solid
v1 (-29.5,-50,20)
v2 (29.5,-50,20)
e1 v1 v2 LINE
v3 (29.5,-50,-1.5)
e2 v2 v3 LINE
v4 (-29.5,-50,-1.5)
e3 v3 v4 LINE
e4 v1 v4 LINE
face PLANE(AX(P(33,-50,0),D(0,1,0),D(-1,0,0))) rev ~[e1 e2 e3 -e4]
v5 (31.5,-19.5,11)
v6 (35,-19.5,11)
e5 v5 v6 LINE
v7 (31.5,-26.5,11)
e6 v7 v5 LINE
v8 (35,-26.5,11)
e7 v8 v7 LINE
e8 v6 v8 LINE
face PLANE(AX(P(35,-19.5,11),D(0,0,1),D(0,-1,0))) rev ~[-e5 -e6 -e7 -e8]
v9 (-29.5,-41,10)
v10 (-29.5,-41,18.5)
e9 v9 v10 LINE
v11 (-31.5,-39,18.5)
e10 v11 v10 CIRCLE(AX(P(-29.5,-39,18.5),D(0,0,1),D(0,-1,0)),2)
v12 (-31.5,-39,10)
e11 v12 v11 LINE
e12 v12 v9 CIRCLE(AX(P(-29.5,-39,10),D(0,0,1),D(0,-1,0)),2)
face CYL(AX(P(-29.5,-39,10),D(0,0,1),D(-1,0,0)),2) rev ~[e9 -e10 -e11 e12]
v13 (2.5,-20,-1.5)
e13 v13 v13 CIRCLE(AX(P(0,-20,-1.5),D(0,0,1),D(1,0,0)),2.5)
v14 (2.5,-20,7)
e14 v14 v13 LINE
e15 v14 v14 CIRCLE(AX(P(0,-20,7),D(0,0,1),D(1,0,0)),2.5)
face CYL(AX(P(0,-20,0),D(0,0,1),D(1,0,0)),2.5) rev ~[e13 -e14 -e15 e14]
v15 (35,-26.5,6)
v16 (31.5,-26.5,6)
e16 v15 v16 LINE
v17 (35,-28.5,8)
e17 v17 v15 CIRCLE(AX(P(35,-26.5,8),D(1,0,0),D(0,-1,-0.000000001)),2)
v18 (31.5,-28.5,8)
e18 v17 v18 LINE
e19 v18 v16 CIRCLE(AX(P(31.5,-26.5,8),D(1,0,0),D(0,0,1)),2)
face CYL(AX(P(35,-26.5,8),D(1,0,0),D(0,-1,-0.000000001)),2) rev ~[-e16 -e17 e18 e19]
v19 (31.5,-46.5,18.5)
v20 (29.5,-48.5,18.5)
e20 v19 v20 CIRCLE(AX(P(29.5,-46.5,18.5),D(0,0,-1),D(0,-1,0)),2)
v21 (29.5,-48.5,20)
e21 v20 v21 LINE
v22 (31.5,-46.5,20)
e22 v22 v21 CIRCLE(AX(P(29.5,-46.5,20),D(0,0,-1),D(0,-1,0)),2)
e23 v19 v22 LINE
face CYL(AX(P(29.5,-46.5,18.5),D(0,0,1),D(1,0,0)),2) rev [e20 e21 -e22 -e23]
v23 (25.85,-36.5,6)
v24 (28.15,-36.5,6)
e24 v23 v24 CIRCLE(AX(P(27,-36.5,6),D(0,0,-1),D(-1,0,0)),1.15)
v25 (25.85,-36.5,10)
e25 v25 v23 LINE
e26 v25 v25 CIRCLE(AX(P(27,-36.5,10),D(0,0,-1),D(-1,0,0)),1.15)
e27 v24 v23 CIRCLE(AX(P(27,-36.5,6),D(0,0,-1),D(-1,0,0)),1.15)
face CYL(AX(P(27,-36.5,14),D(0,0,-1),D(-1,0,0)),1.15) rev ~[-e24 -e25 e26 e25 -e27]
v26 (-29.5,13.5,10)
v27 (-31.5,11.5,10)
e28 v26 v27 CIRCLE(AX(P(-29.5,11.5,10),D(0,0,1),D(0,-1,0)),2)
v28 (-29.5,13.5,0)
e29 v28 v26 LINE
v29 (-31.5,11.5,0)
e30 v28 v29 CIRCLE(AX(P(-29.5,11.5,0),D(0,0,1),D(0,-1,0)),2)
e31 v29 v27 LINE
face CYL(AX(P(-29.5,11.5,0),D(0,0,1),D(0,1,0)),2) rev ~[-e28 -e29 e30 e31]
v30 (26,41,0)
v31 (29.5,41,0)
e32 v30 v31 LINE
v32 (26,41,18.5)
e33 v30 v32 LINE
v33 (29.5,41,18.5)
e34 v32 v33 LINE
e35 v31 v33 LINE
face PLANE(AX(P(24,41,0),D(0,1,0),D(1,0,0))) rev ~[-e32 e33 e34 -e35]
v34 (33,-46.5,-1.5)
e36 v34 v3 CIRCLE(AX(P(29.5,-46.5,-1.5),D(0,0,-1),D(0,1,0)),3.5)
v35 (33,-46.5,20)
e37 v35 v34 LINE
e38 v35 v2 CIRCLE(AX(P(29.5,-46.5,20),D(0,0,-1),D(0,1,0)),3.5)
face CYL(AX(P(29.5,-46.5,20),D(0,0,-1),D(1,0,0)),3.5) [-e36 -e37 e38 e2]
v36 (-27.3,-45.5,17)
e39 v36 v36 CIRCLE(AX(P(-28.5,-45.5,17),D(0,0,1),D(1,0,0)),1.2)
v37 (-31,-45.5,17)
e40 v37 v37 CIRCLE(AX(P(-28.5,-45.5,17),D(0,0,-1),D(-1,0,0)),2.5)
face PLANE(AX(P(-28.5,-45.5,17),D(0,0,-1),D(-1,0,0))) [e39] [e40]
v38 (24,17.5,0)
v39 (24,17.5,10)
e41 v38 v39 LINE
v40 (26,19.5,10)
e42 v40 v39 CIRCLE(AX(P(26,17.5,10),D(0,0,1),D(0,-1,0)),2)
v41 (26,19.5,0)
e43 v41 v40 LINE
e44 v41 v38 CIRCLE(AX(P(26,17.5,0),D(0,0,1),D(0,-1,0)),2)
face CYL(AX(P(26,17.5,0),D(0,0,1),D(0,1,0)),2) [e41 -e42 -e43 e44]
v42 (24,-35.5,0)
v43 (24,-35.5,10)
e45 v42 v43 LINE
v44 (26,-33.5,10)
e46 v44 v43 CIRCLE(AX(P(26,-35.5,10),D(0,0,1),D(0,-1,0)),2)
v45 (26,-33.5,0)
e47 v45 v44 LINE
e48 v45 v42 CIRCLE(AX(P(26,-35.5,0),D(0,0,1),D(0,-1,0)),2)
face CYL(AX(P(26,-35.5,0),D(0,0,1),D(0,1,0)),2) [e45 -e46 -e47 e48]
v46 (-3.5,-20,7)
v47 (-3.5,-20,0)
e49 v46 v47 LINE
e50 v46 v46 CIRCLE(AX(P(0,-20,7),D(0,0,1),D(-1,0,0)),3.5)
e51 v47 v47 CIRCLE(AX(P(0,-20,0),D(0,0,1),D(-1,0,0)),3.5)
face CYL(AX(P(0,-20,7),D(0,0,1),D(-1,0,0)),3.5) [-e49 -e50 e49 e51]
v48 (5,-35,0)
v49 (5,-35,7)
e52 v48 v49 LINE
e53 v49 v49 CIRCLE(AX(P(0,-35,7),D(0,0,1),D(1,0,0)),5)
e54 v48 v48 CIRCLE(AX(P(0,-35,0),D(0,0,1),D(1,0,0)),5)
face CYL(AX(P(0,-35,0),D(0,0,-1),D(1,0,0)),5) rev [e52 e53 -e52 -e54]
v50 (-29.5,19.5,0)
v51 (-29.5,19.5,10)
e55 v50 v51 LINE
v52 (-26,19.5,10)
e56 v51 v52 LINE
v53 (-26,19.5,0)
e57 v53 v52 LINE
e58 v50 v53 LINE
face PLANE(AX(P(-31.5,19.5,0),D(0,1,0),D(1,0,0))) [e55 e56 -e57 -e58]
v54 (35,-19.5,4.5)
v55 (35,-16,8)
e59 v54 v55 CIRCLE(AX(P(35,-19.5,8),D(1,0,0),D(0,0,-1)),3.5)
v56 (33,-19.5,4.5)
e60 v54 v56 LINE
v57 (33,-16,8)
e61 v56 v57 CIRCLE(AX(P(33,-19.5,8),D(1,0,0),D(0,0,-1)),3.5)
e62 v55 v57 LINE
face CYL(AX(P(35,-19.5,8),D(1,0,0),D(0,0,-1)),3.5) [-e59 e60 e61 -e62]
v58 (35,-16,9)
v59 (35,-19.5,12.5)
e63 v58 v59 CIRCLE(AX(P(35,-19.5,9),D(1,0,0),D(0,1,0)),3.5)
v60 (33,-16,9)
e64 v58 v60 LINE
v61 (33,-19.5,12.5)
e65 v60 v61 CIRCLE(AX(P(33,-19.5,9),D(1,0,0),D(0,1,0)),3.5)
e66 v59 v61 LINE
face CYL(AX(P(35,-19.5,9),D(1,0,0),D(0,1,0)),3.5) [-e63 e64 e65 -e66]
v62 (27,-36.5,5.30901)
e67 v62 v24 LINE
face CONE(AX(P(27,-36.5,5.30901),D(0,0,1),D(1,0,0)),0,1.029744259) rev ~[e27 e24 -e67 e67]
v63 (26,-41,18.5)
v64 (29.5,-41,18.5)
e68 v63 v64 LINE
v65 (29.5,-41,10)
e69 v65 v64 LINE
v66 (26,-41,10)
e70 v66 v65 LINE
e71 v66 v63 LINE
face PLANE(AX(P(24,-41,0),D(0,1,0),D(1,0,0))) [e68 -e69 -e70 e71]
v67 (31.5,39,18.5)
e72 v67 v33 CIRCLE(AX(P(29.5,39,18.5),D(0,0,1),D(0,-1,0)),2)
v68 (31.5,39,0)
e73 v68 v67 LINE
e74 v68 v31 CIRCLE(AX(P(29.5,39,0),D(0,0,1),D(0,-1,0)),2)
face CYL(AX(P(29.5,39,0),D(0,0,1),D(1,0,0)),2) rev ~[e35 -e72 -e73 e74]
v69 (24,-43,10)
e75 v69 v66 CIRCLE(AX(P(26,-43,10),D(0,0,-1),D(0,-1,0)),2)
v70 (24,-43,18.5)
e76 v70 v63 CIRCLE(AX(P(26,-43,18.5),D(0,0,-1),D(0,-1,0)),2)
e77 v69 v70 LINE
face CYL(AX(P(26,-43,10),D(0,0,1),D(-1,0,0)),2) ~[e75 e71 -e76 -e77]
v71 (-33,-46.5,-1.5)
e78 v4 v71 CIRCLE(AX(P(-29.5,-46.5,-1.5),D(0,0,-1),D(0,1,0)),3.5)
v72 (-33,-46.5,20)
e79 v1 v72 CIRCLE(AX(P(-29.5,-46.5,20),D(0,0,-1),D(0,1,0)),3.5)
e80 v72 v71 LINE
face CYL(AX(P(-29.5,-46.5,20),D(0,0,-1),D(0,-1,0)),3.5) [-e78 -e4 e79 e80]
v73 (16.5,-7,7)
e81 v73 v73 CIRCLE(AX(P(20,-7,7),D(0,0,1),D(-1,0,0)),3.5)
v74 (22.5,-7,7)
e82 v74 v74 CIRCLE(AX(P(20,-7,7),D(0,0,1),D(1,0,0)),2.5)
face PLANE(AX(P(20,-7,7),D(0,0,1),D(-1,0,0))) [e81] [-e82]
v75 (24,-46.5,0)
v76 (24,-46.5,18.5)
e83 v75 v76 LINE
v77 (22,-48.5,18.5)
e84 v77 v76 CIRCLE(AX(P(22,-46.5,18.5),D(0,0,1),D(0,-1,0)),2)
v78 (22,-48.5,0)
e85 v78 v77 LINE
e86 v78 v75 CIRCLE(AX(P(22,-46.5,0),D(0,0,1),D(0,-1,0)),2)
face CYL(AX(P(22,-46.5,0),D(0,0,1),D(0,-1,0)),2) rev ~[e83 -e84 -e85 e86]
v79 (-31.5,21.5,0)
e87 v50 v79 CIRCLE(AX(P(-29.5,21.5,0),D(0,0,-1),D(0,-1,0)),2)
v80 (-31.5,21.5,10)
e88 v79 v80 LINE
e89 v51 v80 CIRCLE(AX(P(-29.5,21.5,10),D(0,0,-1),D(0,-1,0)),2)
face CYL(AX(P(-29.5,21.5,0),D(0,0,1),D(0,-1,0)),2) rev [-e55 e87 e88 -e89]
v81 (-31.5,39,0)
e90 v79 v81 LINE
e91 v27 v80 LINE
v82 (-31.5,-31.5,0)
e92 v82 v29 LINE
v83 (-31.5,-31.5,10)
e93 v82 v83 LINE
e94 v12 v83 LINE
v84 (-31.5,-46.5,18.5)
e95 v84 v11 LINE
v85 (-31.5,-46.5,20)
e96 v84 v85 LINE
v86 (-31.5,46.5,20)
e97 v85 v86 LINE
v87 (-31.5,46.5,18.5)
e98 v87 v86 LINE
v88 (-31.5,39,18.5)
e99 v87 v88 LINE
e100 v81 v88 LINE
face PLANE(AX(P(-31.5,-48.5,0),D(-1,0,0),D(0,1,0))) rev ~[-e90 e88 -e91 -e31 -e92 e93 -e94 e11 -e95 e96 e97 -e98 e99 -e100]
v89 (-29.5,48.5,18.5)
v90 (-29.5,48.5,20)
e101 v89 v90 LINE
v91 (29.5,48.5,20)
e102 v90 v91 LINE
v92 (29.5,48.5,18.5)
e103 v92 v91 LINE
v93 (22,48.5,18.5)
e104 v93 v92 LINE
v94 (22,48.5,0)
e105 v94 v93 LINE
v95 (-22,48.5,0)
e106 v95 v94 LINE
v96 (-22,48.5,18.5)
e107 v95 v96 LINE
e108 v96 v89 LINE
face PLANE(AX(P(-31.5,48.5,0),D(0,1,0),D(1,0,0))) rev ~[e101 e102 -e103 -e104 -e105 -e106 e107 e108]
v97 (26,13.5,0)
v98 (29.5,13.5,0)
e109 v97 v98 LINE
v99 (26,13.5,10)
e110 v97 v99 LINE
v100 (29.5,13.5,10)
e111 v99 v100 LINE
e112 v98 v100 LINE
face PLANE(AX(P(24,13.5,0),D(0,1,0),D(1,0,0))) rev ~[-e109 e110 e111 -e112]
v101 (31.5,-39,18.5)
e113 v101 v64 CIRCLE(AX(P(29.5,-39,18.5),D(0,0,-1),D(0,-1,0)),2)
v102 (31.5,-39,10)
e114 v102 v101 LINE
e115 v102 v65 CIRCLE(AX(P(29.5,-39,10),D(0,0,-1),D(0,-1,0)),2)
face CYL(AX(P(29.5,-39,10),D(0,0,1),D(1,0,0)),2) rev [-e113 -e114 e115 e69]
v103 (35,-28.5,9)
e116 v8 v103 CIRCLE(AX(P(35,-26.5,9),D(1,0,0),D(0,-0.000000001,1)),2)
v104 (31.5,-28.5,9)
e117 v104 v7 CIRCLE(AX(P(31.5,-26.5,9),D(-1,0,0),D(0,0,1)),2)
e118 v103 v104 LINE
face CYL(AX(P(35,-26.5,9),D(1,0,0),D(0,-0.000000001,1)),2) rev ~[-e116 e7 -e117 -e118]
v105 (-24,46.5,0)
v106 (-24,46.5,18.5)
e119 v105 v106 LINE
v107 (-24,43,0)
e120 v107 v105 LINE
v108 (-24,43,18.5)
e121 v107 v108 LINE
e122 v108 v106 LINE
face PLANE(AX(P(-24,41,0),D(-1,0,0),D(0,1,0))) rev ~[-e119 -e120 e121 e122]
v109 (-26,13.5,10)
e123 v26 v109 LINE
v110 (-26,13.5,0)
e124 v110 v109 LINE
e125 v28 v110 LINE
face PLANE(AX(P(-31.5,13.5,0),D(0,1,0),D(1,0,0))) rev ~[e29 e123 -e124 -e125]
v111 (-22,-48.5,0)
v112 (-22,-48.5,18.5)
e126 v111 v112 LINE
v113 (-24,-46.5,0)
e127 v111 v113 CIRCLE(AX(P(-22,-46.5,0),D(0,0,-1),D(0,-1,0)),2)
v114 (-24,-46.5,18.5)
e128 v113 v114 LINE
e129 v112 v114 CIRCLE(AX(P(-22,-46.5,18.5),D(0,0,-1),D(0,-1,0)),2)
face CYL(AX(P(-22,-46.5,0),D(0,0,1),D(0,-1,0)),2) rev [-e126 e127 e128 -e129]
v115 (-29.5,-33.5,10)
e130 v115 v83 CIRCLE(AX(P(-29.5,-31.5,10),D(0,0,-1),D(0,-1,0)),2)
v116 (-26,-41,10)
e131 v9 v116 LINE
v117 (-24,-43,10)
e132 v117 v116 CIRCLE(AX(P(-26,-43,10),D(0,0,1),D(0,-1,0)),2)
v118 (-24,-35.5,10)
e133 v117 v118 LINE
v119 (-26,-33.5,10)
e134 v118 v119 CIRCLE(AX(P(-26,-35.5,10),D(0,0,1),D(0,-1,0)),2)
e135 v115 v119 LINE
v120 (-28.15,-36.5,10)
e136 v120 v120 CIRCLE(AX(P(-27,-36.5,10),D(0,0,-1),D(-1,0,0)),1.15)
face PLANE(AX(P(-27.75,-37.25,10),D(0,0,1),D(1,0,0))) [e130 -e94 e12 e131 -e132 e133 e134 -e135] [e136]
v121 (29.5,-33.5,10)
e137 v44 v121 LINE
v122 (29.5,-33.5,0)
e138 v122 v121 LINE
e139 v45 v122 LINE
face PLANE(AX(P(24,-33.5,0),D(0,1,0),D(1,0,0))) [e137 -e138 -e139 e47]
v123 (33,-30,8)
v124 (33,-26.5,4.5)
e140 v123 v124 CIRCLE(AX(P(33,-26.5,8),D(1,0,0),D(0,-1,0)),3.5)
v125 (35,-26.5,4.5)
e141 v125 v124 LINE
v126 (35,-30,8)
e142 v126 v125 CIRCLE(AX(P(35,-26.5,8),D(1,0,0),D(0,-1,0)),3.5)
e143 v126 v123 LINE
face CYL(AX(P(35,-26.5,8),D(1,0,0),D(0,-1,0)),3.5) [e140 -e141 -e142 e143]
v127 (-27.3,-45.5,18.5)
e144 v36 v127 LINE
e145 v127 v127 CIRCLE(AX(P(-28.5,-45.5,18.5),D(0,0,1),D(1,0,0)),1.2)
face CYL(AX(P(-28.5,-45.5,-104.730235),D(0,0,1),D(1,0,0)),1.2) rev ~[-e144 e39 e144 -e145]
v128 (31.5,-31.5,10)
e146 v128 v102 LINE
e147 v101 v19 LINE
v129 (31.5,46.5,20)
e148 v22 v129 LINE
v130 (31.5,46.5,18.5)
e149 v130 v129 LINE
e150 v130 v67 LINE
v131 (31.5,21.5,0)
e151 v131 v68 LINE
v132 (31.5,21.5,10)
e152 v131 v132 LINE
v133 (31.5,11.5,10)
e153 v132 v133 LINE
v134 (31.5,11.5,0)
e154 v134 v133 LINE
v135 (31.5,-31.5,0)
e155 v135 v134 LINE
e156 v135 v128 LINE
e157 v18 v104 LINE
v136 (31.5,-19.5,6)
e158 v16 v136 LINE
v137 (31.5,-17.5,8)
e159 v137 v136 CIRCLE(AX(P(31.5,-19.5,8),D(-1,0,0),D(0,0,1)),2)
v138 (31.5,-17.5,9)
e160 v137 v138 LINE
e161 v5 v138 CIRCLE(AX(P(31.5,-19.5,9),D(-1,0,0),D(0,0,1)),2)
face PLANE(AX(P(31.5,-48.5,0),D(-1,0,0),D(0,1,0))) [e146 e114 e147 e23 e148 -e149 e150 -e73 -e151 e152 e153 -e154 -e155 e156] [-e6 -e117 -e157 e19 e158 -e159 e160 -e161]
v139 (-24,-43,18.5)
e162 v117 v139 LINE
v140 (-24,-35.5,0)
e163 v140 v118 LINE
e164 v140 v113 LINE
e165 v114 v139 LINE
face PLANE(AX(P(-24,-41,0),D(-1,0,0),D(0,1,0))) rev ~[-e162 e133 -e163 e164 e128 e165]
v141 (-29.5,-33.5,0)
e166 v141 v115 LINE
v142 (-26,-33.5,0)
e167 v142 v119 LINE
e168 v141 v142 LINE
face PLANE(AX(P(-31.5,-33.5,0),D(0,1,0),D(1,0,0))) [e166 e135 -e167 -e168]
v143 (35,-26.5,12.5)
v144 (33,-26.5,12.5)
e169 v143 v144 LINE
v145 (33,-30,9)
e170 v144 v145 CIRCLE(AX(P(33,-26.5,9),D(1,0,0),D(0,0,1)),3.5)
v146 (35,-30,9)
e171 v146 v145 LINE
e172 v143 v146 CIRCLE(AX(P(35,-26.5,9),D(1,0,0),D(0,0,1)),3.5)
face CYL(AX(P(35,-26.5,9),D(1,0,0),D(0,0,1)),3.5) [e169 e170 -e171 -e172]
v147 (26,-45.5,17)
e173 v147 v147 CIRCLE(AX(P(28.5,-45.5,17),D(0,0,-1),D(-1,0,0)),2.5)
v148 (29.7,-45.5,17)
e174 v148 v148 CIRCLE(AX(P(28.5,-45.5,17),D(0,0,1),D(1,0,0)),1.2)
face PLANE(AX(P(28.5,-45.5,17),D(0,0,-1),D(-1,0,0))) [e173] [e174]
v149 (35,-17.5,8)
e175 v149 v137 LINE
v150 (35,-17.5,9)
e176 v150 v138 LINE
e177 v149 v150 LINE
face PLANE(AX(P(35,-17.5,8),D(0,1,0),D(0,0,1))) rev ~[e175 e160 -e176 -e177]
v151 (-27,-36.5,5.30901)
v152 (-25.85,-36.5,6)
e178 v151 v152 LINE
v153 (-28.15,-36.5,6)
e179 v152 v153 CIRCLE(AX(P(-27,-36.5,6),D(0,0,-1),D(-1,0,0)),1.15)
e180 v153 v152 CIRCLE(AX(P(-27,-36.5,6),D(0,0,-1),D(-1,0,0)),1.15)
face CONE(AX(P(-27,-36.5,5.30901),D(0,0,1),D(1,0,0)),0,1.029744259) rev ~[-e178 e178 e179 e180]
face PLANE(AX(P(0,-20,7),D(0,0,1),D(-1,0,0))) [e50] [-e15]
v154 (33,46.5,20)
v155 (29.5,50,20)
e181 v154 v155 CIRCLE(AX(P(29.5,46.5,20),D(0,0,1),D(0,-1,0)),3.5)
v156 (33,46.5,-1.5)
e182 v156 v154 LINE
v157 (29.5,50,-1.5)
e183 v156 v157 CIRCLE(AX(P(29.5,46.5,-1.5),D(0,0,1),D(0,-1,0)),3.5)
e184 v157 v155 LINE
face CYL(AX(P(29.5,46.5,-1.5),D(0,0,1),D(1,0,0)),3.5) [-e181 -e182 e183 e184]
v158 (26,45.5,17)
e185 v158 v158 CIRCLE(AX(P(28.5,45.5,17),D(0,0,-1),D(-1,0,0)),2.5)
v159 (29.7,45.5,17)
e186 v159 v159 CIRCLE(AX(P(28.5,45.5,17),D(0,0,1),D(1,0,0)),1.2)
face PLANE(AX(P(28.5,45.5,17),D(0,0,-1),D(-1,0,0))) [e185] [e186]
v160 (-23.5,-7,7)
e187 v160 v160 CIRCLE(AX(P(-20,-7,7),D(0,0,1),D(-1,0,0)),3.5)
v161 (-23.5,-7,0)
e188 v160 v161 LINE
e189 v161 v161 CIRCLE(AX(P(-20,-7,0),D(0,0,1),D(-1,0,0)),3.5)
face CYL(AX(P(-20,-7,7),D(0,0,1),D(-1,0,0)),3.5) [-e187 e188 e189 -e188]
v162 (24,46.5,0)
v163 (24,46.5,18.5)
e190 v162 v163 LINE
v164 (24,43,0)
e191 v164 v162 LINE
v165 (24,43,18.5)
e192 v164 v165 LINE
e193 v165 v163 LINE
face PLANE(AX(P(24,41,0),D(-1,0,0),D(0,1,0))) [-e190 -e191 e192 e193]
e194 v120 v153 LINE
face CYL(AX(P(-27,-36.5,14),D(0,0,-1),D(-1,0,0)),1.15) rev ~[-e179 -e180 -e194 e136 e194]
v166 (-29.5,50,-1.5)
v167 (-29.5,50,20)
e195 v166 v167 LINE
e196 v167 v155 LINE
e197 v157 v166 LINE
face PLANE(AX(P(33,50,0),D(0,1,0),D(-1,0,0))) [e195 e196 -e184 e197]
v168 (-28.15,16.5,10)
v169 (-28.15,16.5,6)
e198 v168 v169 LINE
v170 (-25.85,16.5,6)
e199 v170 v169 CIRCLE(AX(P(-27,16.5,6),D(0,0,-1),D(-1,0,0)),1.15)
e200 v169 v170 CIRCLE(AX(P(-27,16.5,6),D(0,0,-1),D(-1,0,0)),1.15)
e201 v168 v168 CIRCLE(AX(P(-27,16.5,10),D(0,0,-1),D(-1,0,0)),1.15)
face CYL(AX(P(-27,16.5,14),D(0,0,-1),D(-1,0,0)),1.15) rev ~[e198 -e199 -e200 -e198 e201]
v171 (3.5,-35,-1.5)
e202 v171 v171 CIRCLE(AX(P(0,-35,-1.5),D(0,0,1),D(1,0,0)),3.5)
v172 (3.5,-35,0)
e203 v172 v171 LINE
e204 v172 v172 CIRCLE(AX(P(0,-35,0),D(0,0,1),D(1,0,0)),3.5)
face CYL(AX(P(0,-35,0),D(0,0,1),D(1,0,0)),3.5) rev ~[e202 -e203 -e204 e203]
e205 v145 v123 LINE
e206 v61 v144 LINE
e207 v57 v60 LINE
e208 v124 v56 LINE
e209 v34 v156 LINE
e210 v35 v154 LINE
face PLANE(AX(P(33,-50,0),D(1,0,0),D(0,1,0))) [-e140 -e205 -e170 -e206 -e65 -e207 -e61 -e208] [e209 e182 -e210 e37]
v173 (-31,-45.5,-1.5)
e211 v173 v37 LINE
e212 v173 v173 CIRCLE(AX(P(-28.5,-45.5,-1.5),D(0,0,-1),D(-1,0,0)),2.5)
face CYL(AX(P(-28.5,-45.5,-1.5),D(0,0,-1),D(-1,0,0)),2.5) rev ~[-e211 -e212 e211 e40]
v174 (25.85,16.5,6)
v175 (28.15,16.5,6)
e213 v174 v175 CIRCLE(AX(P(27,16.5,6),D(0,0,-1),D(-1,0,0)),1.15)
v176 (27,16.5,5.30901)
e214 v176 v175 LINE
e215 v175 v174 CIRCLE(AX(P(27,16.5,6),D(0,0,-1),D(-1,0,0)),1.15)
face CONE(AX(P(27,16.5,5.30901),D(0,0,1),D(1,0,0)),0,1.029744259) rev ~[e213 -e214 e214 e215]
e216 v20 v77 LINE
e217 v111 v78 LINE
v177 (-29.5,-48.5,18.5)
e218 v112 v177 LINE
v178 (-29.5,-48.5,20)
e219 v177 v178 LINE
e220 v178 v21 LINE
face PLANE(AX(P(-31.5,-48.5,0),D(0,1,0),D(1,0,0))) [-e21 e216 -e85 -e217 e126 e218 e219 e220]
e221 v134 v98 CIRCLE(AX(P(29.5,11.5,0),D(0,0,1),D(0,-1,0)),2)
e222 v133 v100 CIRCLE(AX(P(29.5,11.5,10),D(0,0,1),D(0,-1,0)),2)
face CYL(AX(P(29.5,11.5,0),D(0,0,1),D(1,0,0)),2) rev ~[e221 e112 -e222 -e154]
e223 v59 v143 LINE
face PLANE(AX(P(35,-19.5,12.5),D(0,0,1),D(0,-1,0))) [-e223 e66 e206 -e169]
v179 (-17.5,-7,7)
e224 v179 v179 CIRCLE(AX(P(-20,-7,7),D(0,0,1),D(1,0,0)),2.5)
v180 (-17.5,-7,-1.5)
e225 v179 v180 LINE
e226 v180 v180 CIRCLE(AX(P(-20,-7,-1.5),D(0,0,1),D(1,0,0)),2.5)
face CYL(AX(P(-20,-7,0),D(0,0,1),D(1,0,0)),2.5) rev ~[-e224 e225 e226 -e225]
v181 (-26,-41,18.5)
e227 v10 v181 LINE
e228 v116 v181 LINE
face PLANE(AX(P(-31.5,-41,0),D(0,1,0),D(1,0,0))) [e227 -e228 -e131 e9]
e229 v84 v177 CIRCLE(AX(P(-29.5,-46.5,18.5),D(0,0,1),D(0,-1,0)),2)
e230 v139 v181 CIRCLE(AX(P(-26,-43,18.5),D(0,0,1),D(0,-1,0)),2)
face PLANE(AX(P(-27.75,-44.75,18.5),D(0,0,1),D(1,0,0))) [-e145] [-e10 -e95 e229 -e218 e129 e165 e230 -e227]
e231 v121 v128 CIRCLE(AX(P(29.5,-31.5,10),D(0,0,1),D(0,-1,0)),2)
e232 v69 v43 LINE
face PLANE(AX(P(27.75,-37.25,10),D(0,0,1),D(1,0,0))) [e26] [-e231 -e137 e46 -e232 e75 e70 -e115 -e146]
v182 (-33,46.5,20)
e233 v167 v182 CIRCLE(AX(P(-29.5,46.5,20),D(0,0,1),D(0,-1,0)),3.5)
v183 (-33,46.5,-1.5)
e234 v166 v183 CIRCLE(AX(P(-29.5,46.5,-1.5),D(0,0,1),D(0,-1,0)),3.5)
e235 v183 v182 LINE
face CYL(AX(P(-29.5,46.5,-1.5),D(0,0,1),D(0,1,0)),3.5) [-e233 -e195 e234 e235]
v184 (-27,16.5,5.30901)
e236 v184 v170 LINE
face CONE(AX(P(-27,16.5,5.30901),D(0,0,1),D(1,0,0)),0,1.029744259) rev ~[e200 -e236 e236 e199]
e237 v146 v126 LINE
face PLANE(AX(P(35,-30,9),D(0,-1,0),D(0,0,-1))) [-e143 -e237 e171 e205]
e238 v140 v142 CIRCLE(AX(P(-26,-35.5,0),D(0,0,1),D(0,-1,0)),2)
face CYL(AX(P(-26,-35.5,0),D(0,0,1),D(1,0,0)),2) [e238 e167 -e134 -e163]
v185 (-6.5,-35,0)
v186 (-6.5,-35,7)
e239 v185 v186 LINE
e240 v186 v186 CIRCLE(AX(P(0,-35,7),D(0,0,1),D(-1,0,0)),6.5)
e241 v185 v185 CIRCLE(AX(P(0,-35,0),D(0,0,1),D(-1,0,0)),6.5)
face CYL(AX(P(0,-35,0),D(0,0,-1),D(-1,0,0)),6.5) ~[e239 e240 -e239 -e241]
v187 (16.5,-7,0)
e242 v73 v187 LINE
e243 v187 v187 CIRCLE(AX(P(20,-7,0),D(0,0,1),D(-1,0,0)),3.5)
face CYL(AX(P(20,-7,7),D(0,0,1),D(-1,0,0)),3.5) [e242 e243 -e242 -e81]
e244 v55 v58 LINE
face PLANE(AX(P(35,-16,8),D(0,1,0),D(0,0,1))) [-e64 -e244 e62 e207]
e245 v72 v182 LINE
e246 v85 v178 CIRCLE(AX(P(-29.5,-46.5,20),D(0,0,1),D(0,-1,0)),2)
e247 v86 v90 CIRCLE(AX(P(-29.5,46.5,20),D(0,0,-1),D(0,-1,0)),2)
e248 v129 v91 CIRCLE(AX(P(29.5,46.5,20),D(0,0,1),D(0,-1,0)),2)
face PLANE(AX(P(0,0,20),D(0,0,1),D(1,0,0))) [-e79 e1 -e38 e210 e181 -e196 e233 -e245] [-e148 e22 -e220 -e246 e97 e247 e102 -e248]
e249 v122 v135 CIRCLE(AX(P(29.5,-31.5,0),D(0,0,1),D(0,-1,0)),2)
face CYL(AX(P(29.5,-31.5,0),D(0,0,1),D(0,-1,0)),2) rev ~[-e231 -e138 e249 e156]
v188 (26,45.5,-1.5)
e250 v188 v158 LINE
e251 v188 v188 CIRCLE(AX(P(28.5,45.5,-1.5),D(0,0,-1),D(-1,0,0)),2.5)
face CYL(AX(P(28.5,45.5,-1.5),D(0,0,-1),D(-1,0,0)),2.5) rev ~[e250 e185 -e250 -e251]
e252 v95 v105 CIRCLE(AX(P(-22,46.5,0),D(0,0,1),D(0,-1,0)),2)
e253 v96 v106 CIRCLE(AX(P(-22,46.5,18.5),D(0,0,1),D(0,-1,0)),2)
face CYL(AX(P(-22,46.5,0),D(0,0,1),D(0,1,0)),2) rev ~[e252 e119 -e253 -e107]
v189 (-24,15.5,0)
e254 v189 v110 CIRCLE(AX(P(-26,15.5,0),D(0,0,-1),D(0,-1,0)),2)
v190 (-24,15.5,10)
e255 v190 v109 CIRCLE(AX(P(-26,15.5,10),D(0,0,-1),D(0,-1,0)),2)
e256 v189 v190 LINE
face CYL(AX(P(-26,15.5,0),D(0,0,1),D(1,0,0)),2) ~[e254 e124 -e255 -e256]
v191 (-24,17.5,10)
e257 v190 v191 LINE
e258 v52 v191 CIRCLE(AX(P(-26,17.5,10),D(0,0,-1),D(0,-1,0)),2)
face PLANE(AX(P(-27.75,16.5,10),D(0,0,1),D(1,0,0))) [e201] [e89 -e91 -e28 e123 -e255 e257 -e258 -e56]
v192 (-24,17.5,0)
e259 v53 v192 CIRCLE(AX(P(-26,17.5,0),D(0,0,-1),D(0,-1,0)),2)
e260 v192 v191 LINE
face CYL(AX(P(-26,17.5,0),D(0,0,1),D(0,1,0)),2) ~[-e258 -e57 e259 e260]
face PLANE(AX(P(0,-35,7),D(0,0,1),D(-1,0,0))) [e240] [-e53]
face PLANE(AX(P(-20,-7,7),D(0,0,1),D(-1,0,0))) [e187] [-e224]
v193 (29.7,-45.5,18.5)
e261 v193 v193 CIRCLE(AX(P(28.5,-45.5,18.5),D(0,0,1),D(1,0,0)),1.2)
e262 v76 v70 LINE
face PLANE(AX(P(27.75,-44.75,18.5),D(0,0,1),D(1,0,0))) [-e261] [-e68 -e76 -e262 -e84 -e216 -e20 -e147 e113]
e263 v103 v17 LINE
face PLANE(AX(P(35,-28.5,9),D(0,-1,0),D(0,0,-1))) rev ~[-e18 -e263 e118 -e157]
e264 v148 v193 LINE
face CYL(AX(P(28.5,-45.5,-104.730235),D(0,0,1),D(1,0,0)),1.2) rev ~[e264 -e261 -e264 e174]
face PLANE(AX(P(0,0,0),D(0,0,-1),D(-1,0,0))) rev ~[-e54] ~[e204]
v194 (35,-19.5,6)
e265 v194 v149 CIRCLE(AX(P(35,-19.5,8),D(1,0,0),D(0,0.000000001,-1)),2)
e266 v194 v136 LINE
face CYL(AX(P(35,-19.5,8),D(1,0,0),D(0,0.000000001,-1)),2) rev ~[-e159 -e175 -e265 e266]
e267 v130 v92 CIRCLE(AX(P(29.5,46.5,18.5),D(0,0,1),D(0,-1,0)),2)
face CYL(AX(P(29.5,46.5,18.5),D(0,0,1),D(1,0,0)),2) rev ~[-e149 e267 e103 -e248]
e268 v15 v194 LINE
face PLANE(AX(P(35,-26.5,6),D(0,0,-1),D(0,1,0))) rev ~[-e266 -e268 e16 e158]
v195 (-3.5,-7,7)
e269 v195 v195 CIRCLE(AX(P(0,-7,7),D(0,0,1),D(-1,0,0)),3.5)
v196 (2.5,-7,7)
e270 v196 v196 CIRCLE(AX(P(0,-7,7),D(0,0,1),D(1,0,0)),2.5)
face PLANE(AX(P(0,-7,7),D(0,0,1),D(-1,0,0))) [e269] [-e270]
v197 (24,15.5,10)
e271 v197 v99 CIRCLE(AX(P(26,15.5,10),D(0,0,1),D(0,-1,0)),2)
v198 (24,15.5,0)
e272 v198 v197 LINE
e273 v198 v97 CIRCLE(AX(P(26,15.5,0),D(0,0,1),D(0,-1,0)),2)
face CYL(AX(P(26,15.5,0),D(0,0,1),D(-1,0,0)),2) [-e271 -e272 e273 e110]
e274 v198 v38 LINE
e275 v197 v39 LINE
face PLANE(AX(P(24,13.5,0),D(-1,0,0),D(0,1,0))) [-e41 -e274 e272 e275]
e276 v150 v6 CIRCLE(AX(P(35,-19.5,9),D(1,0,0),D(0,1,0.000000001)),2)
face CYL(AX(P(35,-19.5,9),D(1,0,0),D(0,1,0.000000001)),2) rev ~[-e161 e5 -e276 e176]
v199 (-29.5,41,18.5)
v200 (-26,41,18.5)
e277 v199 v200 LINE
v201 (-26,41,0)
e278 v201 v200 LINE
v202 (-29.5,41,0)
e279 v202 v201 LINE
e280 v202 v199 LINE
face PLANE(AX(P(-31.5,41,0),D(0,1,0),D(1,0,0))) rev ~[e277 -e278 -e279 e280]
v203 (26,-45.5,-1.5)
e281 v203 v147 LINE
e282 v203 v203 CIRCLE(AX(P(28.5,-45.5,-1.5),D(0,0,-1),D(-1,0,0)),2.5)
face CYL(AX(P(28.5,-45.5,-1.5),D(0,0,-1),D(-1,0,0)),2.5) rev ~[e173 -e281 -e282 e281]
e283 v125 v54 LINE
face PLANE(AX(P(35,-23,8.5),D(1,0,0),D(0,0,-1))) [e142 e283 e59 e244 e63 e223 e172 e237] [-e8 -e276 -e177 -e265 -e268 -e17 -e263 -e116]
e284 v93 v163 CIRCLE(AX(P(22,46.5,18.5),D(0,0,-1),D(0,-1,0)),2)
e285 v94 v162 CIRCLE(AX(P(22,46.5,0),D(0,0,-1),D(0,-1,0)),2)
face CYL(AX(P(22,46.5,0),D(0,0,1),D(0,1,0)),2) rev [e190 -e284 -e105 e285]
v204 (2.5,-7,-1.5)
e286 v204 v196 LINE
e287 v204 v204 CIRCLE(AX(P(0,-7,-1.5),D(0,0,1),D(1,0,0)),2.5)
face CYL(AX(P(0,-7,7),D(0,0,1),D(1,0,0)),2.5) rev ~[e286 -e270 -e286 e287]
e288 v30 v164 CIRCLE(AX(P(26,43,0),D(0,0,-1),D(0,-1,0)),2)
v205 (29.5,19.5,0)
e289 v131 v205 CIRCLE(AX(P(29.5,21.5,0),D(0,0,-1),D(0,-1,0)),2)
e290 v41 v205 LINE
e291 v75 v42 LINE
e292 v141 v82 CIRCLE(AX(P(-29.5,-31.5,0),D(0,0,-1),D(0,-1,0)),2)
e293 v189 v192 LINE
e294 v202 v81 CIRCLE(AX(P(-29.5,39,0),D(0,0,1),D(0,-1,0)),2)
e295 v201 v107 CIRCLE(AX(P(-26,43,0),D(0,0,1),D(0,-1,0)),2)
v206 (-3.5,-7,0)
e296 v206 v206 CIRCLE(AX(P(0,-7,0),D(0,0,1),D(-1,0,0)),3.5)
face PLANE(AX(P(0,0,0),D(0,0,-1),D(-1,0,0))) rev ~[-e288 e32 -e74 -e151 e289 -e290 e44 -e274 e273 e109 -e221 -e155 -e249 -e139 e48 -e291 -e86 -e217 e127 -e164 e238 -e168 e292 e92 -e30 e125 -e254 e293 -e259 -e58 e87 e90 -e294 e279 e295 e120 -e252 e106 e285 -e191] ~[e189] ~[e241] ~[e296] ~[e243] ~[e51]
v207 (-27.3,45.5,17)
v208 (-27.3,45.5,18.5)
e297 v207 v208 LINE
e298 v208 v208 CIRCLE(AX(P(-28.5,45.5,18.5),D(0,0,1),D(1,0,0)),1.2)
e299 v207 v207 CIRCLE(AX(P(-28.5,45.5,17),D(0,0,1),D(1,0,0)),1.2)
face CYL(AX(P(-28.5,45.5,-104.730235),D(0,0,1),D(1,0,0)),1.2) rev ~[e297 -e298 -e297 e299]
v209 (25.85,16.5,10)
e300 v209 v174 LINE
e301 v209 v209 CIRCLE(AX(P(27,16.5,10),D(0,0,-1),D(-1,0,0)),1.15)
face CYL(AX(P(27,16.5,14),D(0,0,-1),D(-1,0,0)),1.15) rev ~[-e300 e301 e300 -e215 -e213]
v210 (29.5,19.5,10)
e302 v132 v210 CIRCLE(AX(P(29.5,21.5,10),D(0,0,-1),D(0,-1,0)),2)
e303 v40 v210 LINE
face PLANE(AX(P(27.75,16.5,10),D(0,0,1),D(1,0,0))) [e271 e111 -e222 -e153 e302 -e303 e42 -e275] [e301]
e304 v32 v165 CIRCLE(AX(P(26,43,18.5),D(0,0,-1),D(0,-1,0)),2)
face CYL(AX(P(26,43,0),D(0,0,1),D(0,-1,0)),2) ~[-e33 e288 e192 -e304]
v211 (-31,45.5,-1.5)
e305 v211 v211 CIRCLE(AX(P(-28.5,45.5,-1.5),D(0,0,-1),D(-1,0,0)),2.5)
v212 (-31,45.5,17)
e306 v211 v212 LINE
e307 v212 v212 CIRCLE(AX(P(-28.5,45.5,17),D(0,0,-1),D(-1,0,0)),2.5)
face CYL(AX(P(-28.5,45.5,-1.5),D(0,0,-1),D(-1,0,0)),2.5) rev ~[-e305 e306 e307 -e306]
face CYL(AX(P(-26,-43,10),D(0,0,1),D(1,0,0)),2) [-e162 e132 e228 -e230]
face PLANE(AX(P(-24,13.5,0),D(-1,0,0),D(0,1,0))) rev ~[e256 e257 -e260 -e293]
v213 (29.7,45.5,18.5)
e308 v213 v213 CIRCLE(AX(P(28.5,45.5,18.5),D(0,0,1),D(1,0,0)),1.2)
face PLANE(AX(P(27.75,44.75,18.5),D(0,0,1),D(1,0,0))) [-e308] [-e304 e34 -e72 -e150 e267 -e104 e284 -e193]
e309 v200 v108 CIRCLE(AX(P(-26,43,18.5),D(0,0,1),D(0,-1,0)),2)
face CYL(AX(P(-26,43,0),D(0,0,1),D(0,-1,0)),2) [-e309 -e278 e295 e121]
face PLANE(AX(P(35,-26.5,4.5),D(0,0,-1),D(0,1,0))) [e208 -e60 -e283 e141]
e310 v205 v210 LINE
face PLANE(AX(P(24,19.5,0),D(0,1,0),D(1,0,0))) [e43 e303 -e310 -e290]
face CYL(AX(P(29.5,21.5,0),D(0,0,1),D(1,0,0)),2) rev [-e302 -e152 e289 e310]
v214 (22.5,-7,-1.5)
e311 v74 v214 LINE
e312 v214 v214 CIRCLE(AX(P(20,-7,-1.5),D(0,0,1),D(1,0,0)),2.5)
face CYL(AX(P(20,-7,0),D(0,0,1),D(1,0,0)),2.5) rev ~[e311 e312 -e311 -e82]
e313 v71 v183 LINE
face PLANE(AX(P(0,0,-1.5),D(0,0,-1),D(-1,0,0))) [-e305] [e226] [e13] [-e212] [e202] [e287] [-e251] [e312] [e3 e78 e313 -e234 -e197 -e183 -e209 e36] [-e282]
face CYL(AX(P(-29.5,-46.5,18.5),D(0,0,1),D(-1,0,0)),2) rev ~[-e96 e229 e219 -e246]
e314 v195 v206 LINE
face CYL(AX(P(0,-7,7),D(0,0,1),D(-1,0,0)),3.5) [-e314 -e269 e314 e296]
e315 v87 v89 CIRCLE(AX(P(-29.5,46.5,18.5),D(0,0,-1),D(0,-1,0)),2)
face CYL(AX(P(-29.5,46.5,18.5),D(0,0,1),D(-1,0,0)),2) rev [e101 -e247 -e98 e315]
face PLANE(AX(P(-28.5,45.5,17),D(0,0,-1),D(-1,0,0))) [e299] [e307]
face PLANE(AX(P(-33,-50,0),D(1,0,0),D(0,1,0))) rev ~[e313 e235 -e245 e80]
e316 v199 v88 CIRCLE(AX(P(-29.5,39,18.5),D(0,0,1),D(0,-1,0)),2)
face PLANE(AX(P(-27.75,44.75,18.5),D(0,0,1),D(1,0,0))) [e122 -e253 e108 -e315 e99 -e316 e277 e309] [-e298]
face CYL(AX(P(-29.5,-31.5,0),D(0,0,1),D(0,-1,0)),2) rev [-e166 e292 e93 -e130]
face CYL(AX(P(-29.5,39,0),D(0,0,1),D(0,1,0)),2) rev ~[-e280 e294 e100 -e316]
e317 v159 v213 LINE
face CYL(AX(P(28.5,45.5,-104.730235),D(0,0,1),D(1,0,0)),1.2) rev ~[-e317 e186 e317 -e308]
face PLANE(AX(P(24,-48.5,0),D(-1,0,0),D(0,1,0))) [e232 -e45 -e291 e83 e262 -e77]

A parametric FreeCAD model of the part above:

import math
import FreeCAD as App
import Part
import Sketcher
Q = App.Units.Quantity


def edges_at(feature, points):
    """Names of the edges that pass closest to the given points."""
    edges = feature.Shape.Edges
    near = lambda p: min(range(len(edges)), key=lambda i: edges[i].distToShape(Part.Vertex(*p))[0])
    return sorted({f"Edge{near(p) + 1}" for p in points})


def add_polygon(sketch, points):
    """Adds a closed chain of lines whose ends are joined by coincident constraints."""
    first, n = sketch.GeometryCount, len(points)
    for a, b in zip(points, points[1:] + points[:1]):
        sketch.addGeometry(Part.LineSegment(App.Vector(*a, 0), App.Vector(*b, 0)), False)
    for i in range(n):
        sketch.addConstraint(Sketcher.Constraint("Coincident", first + i, 2, first + (i + 1) % n, 1))

doc = App.newDocument("Part")
body = doc.addObject("PartDesign::Body", "Body")

sketch1 = body.newObject("Sketcher::SketchObject", "Sketch")
sketch1.AttachmentSupport = (doc.getObject("XY_Plane"), [""])
sketch1.MapMode = "FlatFace"
add_polygon(sketch1, [(-33, 50), (-33, -50), (33, -50), (33, 50)])
add_polygon(sketch1, [(32, -48), (-32, -48), (-32, 48), (32, 48)])
sketch1.addConstraint([
    Sketcher.Constraint("Vertical", 0),
    Sketcher.Constraint("Horizontal", 1),
    Sketcher.Constraint("Vertical", 2),
    Sketcher.Constraint("Horizontal", 3),
    Sketcher.Constraint("Horizontal", 4),
    Sketcher.Constraint("Vertical", 5),
    Sketcher.Constraint("Horizontal", 6),
    Sketcher.Constraint("Vertical", 7),
    Sketcher.Constraint("Symmetric", 0, 2, 2, 2, -1, 1),
    Sketcher.Constraint("Symmetric", 4, 2, 6, 2, -1, 1),
    Sketcher.Constraint("DistanceX", 1, 1, 1, 2, Q("66 mm")),
    Sketcher.Constraint("DistanceX", 4, 2, 4, 1, Q("63 mm")),
    Sketcher.Constraint("DistanceY", 0, 2, 0, 1, Q("100 mm")),
    Sketcher.Constraint("DistanceY", 5, 1, 5, 2, Q("97 mm")),
])
pad1 = body.newObject("PartDesign::Pad", "Pad")
pad1.Profile = sketch1
pad1.Length = 20

sketch2 = body.newObject("Sketcher::SketchObject", "Sketch001")
sketch2.AttachmentSupport = (doc.getObject("XY_Plane"), [""])
sketch2.MapMode = "FlatFace"
add_polygon(sketch2, [(33, 50), (33, -50), (-33, -50), (-33, 50)])
sketch2.addConstraint([
    Sketcher.Constraint("Vertical", 0),
    Sketcher.Constraint("Horizontal", 1),
    Sketcher.Constraint("Vertical", 2),
    Sketcher.Constraint("Horizontal", 3),
    Sketcher.Constraint("Symmetric", 0, 2, 2, 2, -1, 1),
    Sketcher.Constraint("DistanceX", 1, 2, 1, 1, Q("66 mm")),
    Sketcher.Constraint("DistanceY", 0, 2, 0, 1, Q("100 mm")),
])
pad2 = body.newObject("PartDesign::Pad", "Pad001")
pad2.Profile = sketch2
pad2.Length = 1.5
pad2.Reversed = True

sketch3 = body.newObject("Sketcher::SketchObject", "Sketch002")
sketch3.AttachmentSupport = (doc.getObject("XY_Plane"), [""])
sketch3.MapMode = "FlatFace"
add_polygon(sketch3, [(-32, 20), (-32, 14), (-24, 14), (-24, 20)])
add_polygon(sketch3, [(24, 20), (24, 14), (32, 14), (32, 20)])
add_polygon(sketch3, [(-32, -34), (-32, -41), (-24, -41), (-24, -34)])
add_polygon(sketch3, [(24, -34), (24, -41), (32, -41), (32, -34)])
sketch3.addConstraint([
    Sketcher.Constraint("Vertical", 0),
    Sketcher.Constraint("Horizontal", 1),
    Sketcher.Constraint("Vertical", 2),
    Sketcher.Constraint("Horizontal", 3),
    Sketcher.Constraint("Vertical", 4),
    Sketcher.Constraint("Horizontal", 5),
    Sketcher.Constraint("Vertical", 6),
    Sketcher.Constraint("Horizontal", 7),
    Sketcher.Constraint("Vertical", 8),
    Sketcher.Constraint("Horizontal", 9),
    Sketcher.Constraint("Vertical", 10),
    Sketcher.Constraint("Horizontal", 11),
    Sketcher.Constraint("Vertical", 12),
    Sketcher.Constraint("Horizontal", 13),
    Sketcher.Constraint("Vertical", 14),
    Sketcher.Constraint("Horizontal", 15),
    Sketcher.Constraint("Symmetric", 1, 2, 4, 2, -2),
    Sketcher.Constraint("Symmetric", 3, 2, 6, 2, -2),
    Sketcher.Constraint("Symmetric", 9, 2, 12, 2, -2),
    Sketcher.Constraint("Symmetric", 11, 2, 14, 2, -2),
    Sketcher.Constraint("Vertical", 3, 2, 8, 2),
    Sketcher.Constraint("Vertical", 2, 2, 9, 2),
    Sketcher.Constraint("Equal", 15, 8),
    Sketcher.Constraint("DistanceY", 0, 2, 0, 1, Q("6 mm")),
    Sketcher.Constraint("DistanceX", 1, 1, 1, 2, Q("7.5 mm")),
    Sketcher.Constraint("DistanceX", 1, 2, -1, 1, Q("24 mm")),
    Sketcher.Constraint("DistanceY", 8, 2, -1, 1, Q("41 mm")),
    Sketcher.Constraint("DistanceY", 10, 2, 1, 2, Q("47 mm")),
])
pad3 = body.newObject("PartDesign::Pad", "Pad002")
pad3.Profile = sketch3
pad3.Length = 10

sketch4 = body.newObject("Sketcher::SketchObject", "Sketch003")
sketch4.AttachmentSupport = (doc.getObject("XY_Plane"), [""])
sketch4.MapMode = "FlatFace"
sketch4.AttachmentOffset = App.Placement(App.Vector(0, 0, 10), App.Rotation())
sketch4.addGeometry([
    Part.Circle(App.Vector(-27, 16.5, 0), App.Vector(0, 0, 1), 1.1),
    Part.Circle(App.Vector(27, 16.5, 0), App.Vector(0, 0, 1), 1.1),
    Part.Circle(App.Vector(27, -36.5, 0), App.Vector(0, 0, 1), 1.1),
    Part.Circle(App.Vector(-27, -36.5, 0), App.Vector(0, 0, 1), 1.1),
], False)
sketch4.addConstraint([
    Sketcher.Constraint("Equal", 0, 1),
    Sketcher.Constraint("Equal", 1, 2),
    Sketcher.Constraint("Equal", 2, 3),
    Sketcher.Constraint("Symmetric", 0, 3, 1, 3, -2),
    Sketcher.Constraint("Symmetric", 2, 3, 3, 3, -2),
    Sketcher.Constraint("Vertical", 1, 3, 2, 3),
    Sketcher.Constraint("Diameter", 0, Q("2.3 mm")),
    Sketcher.Constraint("DistanceX", 0, 3, -1, 1, Q("27 mm")),
    Sketcher.Constraint("DistanceY", 2, 3, 1, 3, Q("53 mm")),
    Sketcher.Constraint("DistanceY", -1, 1, 0, 3, Q("16.5 mm")),
])
doc.recompute()
hole = body.newObject("PartDesign::Hole", "Hole")
hole.Profile = sketch4
hole.ThreadType = "None"
hole.Diameter = 2.3
hole.DepthType = "Dimension"
hole.Depth = 4
hole.DrillPoint = "Angled"
hole.DrillPointAngle = 118

sketch5 = body.newObject("Sketcher::SketchObject", "Sketch004")
sketch5.AttachmentSupport = (doc.getObject("XY_Plane"), [""])
sketch5.MapMode = "FlatFace"
add_polygon(sketch5, [(-32, 48), (-32, 41), (-24, 41), (-24, 48)])
add_polygon(sketch5, [(24, 48), (24, 41), (32, 41), (32, 48)])
add_polygon(sketch5, [(24, -41), (24, -48), (32, -48), (32, -41)])
add_polygon(sketch5, [(-32, -41), (-32, -48), (-24, -48), (-24, -41)])
sketch5.addConstraint([
    Sketcher.Constraint("Vertical", 0),
    Sketcher.Constraint("Horizontal", 1),
    Sketcher.Constraint("Vertical", 2),
    Sketcher.Constraint("Horizontal", 3),
    Sketcher.Constraint("Vertical", 4),
    Sketcher.Constraint("Horizontal", 5),
    Sketcher.Constraint("Vertical", 6),
    Sketcher.Constraint("Horizontal", 7),
    Sketcher.Constraint("Vertical", 8),
    Sketcher.Constraint("Horizontal", 9),
    Sketcher.Constraint("Vertical", 10),
    Sketcher.Constraint("Horizontal", 11),
    Sketcher.Constraint("Vertical", 12),
    Sketcher.Constraint("Horizontal", 13),
    Sketcher.Constraint("Vertical", 14),
    Sketcher.Constraint("Horizontal", 15),
    Sketcher.Constraint("Symmetric", 2, 2, 8, 2, -1, 1),
    Sketcher.Constraint("Symmetric", 0, 2, 10, 2, -1, 1),
    Sketcher.Constraint("Symmetric", 6, 2, 12, 2, -1, 1),
    Sketcher.Constraint("Symmetric", 4, 2, 14, 2, -1, 1),
    Sketcher.Constraint("Symmetric", 1, 2, 4, 2, -2),
    Sketcher.Constraint("Symmetric", 3, 2, 6, 2, -2),
    Sketcher.Constraint("Equal", 15, 0),
    Sketcher.Constraint("DistanceX", 1, 1, 1, 2, Q("7.5 mm")),
    Sketcher.Constraint("DistanceY", -1, 1, 0, 2, Q("41 mm")),
    Sketcher.Constraint("DistanceX", 1, 2, -1, 1, Q("24 mm")),
])
pad4 = body.newObject("PartDesign::Pad", "Pad003")
pad4.Profile = sketch5
pad4.Length = 18.5
doc.recompute()

fillet = body.newObject("PartDesign::Fillet", "Fillet")
fillet.Base = (pad4, edges_at(pad4, [
    (-31.5, 41, 9.25),
    (-24, 41, 9.25),
    (-24, 48.5, 9.25),
    (31.5, 41, 9.25),
    (24, 48.5, 9.25),
    (24, 41, 9.25),
    (24, -48.5, 9.25),
    (-24, -48.5, 9.25),
    (-31.5, 19.5, 5),
    (-31.5, 13.5, 5),
    (-24, 13.5, 5),
    (-24, 19.5, 5),
    (31.5, 13.5, 5),
    (31.5, 19.5, 5),
    (24, 19.5, 5),
    (24, 13.5, 5),
    (-31.5, -33.5, 5),
    (-24, -33.5, 5),
    (31.5, -33.5, 5),
    (24, -33.5, 5),
]))
fillet.Radius = 2
doc.recompute()

fillet2 = body.newObject("PartDesign::Fillet", "Fillet001")
fillet2.Base = (fillet, edges_at(fillet, [
    (31.5, -41, 14.25),
    (24, -41, 14.25),
    (-24, -41, 14.25),
    (31.5, -48.5, 19.25),
    (-31.5, -41, 14.25),
    (31.5, 48.5, 19.25),
    (-31.5, 48.5, 19.25),
    (-31.5, -48.5, 19.25),
]))
fillet2.Radius = 2
doc.recompute()

fillet3 = body.newObject("PartDesign::Fillet", "Fillet002")
fillet3.Base = (fillet2, edges_at(fillet2, [
    (33, -50, 9.25),
    (-33, -50, 9.25),
    (-33, 50, 9.25),
    (33, 50, 9.25),
]))
fillet3.Radius = 3.5

sketch6 = body.newObject("Sketcher::SketchObject", "Sketch005")
sketch6.AttachmentSupport = (doc.getObject("XY_Plane"), [""])
sketch6.MapMode = "FlatFace"
sketch6.addGeometry([
    Part.Circle(App.Vector(-20, -7, 0), App.Vector(0, 0, 1), 2.5),
    Part.Circle(App.Vector(20, -7, 0), App.Vector(0, 0, 1), 2.5),
    Part.Circle(App.Vector(0, -20, 0), App.Vector(0, 0, 1), 2.5),
    Part.Circle(App.Vector(0, -7, 0), App.Vector(0, 0, 1), 2.5),
    Part.Circle(App.Vector(0, -35, 0), App.Vector(0, 0, 1), 3.5),
], False)
sketch6.addConstraint([
    Sketcher.Constraint("Equal", 0, 1),
    Sketcher.Constraint("Equal", 1, 2),
    Sketcher.Constraint("Equal", 2, 3),
    Sketcher.Constraint("Symmetric", 0, 3, 1, 3, -2),
    Sketcher.Constraint("PointOnObject", 2, 3, -2),
    Sketcher.Constraint("PointOnObject", 3, 3, -2),
    Sketcher.Constraint("PointOnObject", 4, 3, -2),
    Sketcher.Constraint("Horizontal", 1, 3, 3, 3),
    Sketcher.Constraint("Diameter", 0, Q("5 mm")),
    Sketcher.Constraint("Diameter", 4, Q("7 mm")),
    Sketcher.Constraint("DistanceX", 0, 3, -1, 1, Q("20 mm")),
    Sketcher.Constraint("DistanceY", 0, 3, -1, 1, Q("7 mm")),
    Sketcher.Constraint("DistanceY", 2, 3, -1, 1, Q("20 mm")),
    Sketcher.Constraint("DistanceY", 4, 3, -1, 1, Q("35 mm")),
])
pocket1 = body.newObject("PartDesign::Pocket", "Pocket")
pocket1.Profile = sketch6
pocket1.Type = "ThroughAll"

sketch7 = body.newObject("Sketcher::SketchObject", "Sketch006")
sketch7.AttachmentSupport = (doc.getObject("XY_Plane"), [""])
sketch7.MapMode = "FlatFace"
sketch7.AttachmentOffset = App.Placement(App.Vector(0, 0, 7), App.Rotation())
sketch7.addGeometry([
    Part.Circle(App.Vector(0, -7, 0), App.Vector(0, 0, 1), 3.5),
    Part.Circle(App.Vector(0, -7, 0), App.Vector(0, 0, 1), 2.5),
    Part.Circle(App.Vector(20, -7, 0), App.Vector(0, 0, 1), 3.5),
    Part.Circle(App.Vector(20, -7, 0), App.Vector(0, 0, 1), 2.5),
    Part.Circle(App.Vector(0, -20, 0), App.Vector(0, 0, 1), 3.5),
    Part.Circle(App.Vector(0, -20, 0), App.Vector(0, 0, 1), 2.5),
    Part.Circle(App.Vector(-20, -7, 0), App.Vector(0, 0, 1), 3.5),
    Part.Circle(App.Vector(-20, -7, 0), App.Vector(0, 0, 1), 2.5),
], False)
sketch7.addConstraint([
    Sketcher.Constraint("Coincident", 1, 3, 0, 3),
    Sketcher.Constraint("Coincident", 3, 3, 2, 3),
    Sketcher.Constraint("Coincident", 5, 3, 4, 3),
    Sketcher.Constraint("Coincident", 7, 3, 6, 3),
    Sketcher.Constraint("Equal", 0, 2),
    Sketcher.Constraint("Equal", 1, 3),
    Sketcher.Constraint("Equal", 2, 4),
    Sketcher.Constraint("Equal", 3, 5),
    Sketcher.Constraint("Equal", 4, 6),
    Sketcher.Constraint("Equal", 5, 7),
    Sketcher.Constraint("Symmetric", 2, 3, 6, 3, -2),
    Sketcher.Constraint("PointOnObject", 0, 3, -2),
    Sketcher.Constraint("PointOnObject", 4, 3, -2),
    Sketcher.Constraint("Horizontal", 1, 3, 2, 3),
    Sketcher.Constraint("Diameter", 0, Q("7 mm")),
    Sketcher.Constraint("Diameter", 1, Q("5 mm")),
    Sketcher.Constraint("DistanceY", 0, 3, -1, 1, Q("7 mm")),
    Sketcher.Constraint("DistanceX", -1, 1, 2, 3, Q("20 mm")),
    Sketcher.Constraint("DistanceY", 4, 3, -1, 1, Q("20 mm")),
])
pad5 = body.newObject("PartDesign::Pad", "Pad004")
pad5.Profile = sketch7
pad5.Length = 7
pad5.Reversed = True

sketch8 = body.newObject("Sketcher::SketchObject", "Sketch007")
sketch8.AttachmentSupport = (doc.getObject("XY_Plane"), [""])
sketch8.MapMode = "FlatFace"
sketch8.AttachmentOffset = App.Placement(App.Vector(0, 0, -1.5), App.Rotation())
sketch8.addGeometry([
    Part.Circle(App.Vector(28.5, 45.5, 0), App.Vector(0, 0, 1), 2.5),
    Part.Circle(App.Vector(-28.5, 45.5, 0), App.Vector(0, 0, 1), 2.5),
    Part.Circle(App.Vector(-28.5, -45.5, 0), App.Vector(0, 0, 1), 2.5),
    Part.Circle(App.Vector(28.5, -45.5, 0), App.Vector(0, 0, 1), 2.5),
], False)
sketch8.addConstraint([
    Sketcher.Constraint("Equal", 0, 1),
    Sketcher.Constraint("Equal", 1, 2),
    Sketcher.Constraint("Equal", 2, 3),
    Sketcher.Constraint("Symmetric", 0, 3, 2, 3, -1, 1),
    Sketcher.Constraint("Symmetric", 1, 3, 3, 3, -1, 1),
    Sketcher.Constraint("Symmetric", 0, 3, 1, 3, -2),
    Sketcher.Constraint("Diameter", 0, Q("5 mm")),
    Sketcher.Constraint("DistanceX", 1, 3, 0, 3, Q("57 mm")),
    Sketcher.Constraint("DistanceY", 2, 3, 1, 3, Q("91 mm")),
])
pocket2 = body.newObject("PartDesign::Pocket", "Pocket001")
pocket2.Profile = sketch8
pocket2.Length = 18.5
pocket2.Reversed = True

sketch9 = body.newObject("Sketcher::SketchObject", "Sketch008")
sketch9.AttachmentSupport = (doc.getObject("XY_Plane"), [""])
sketch9.MapMode = "FlatFace"
sketch9.AttachmentOffset = App.Placement(App.Vector(0, 0, 17), App.Rotation())
sketch9.addGeometry([
    Part.Circle(App.Vector(28.5, 45.5, 0), App.Vector(0, 0, 1), 1.2),
    Part.Circle(App.Vector(-28.5, 45.5, 0), App.Vector(0, 0, 1), 1.2),
    Part.Circle(App.Vector(-28.5, -45.5, 0), App.Vector(0, 0, 1), 1.2),
    Part.Circle(App.Vector(28.5, -45.5, 0), App.Vector(0, 0, 1), 1.2),
], False)
sketch9.addConstraint([
    Sketcher.Constraint("Equal", 0, 1),
    Sketcher.Constraint("Equal", 1, 2),
    Sketcher.Constraint("Equal", 2, 3),
    Sketcher.Constraint("Symmetric", 0, 3, 2, 3, -1, 1),
    Sketcher.Constraint("Symmetric", 1, 3, 3, 3, -1, 1),
    Sketcher.Constraint("Symmetric", 0, 3, 1, 3, -2),
    Sketcher.Constraint("Diameter", 0, Q("2.4 mm")),
    Sketcher.Constraint("DistanceX", 1, 3, 0, 3, Q("57 mm")),
    Sketcher.Constraint("DistanceY", 2, 3, 1, 3, Q("91 mm")),
])
doc.recompute()
hole2 = body.newObject("PartDesign::Hole", "Hole001")
hole2.Profile = sketch9
hole2.ThreadType = "None"
hole2.Diameter = 2.4
hole2.DepthType = "ThroughAll"
hole2.Reversed = True

sketch10 = body.newObject("Sketcher::SketchObject", "Sketch009")
sketch10.AttachmentSupport = (doc.getObject("YZ_Plane"), [""])
sketch10.MapMode = "FlatFace"
sketch10.AttachmentOffset = App.Placement(App.Vector(0, 0, 31.5), App.Rotation())
add_polygon(sketch10, [(-18, 6), (-28, 6), (-28, 11), (-18, 11)])
sketch10.addConstraint([
    Sketcher.Constraint("Horizontal", 0),
    Sketcher.Constraint("Vertical", 1),
    Sketcher.Constraint("Horizontal", 2),
    Sketcher.Constraint("Vertical", 3),
    Sketcher.Constraint("DistanceX", 0, 2, 0, 1, Q("11 mm")),
    Sketcher.Constraint("DistanceY", 1, 1, 1, 2, Q("5 mm")),
    Sketcher.Constraint("DistanceY", -1, 1, 0, 2, Q("6 mm")),
    Sketcher.Constraint("DistanceX", 0, 2, -1, 1, Q("28.5 mm")),
])
pocket3 = body.newObject("PartDesign::Pocket", "Pocket002")
pocket3.Profile = sketch10
pocket3.Type = "ThroughAll"
pocket3.Reversed = True
doc.recompute()

fillet4 = body.newObject("PartDesign::Fillet", "Fillet003")
fillet4.Base = (pocket3, edges_at(pocket3, [
    (32.25, -28.5, 6),
    (32.25, -17.5, 6),
    (32.25, -17.5, 11),
    (32.25, -28.5, 11),
]))
fillet4.Radius = 2

sketch11 = body.newObject("Sketcher::SketchObject", "Sketch010")
sketch11.AttachmentSupport = (doc.getObject("XY_Plane"), [""])
sketch11.MapMode = "FlatFace"
sketch11.addGeometry([
    Part.Circle(App.Vector(0, -35, 0), App.Vector(0, 0, 1), 6),
    Part.Circle(App.Vector(0, -35, 0), App.Vector(0, 0, 1), 5),
], False)
sketch11.addConstraint([
    Sketcher.Constraint("Coincident", 1, 3, 0, 3),
    Sketcher.Constraint("PointOnObject", 0, 3, -2),
    Sketcher.Constraint("Diameter", 0, Q("13 mm")),
    Sketcher.Constraint("Diameter", 1, Q("10 mm")),
    Sketcher.Constraint("DistanceY", 0, 3, -1, 1, Q("35 mm")),
])
pad6 = body.newObject("PartDesign::Pad", "Pad005")
pad6.Profile = sketch11
pad6.Length = 7

sketch12 = body.newObject("Sketcher::SketchObject", "Sketch011")
sketch12.AttachmentSupport = (doc.getObject("YZ_Plane"), [""])
sketch12.MapMode = "FlatFace"
sketch12.AttachmentOffset = App.Placement(App.Vector(0, 0, 35), App.Rotation())
sketch12.addGeometry([
    Part.LineSegment(App.Vector(-26.5, 4.5, 0), App.Vector(-19.5, 4.5, 0)),
    Part.ArcOfCircle(Part.Circle(App.Vector(-19.5, 8, 0), App.Vector(0, 0, 1), 3.5), math.radians(-90), math.radians(0)),
    Part.LineSegment(App.Vector(-16, 8, 0), App.Vector(-16, 9, 0)),
    Part.ArcOfCircle(Part.Circle(App.Vector(-19.5, 9, 0), App.Vector(0, 0, 1), 3.5), math.radians(0), math.radians(90)),
    Part.LineSegment(App.Vector(-19.5, 12.5, 0), App.Vector(-26.5, 12.5, 0)),
    Part.ArcOfCircle(Part.Circle(App.Vector(-26.5, 9, 0), App.Vector(0, 0, 1), 3.5), math.radians(90), math.radians(180)),
    Part.LineSegment(App.Vector(-30, 9, 0), App.Vector(-30, 8, 0)),
    Part.ArcOfCircle(Part.Circle(App.Vector(-26.5, 8, 0), App.Vector(0, 0, 1), 3.5), math.radians(-180), math.radians(-90)),
    Part.LineSegment(App.Vector(-26.5, 11, 0), App.Vector(-19.5, 11, 0)),
    Part.ArcOfCircle(Part.Circle(App.Vector(-19.5, 9, 0), App.Vector(0, 0, 1), 2), math.radians(0), math.radians(90)),
    Part.LineSegment(App.Vector(-17.5, 9, 0), App.Vector(-17.5, 8, 0)),
    Part.ArcOfCircle(Part.Circle(App.Vector(-19.5, 8, 0), App.Vector(0, 0, 1), 2), math.radians(-90), math.radians(0)),
    Part.LineSegment(App.Vector(-19.5, 6, 0), App.Vector(-26.5, 6, 0)),
    Part.ArcOfCircle(Part.Circle(App.Vector(-26.5, 8, 0), App.Vector(0, 0, 1), 2), math.radians(-180), math.radians(-90)),
    Part.LineSegment(App.Vector(-28.5, 8, 0), App.Vector(-28.5, 9, 0)),
    Part.ArcOfCircle(Part.Circle(App.Vector(-26.5, 9, 0), App.Vector(0, 0, 1), 2), math.radians(90), math.radians(180)),
], False)
sketch12.addConstraint([
    Sketcher.Constraint("Tangent", 0, 2, 1, 1),
    Sketcher.Constraint("Tangent", 1, 2, 2, 1),
    Sketcher.Constraint("Tangent", 2, 2, 3, 1),
    Sketcher.Constraint("Tangent", 3, 2, 4, 1),
    Sketcher.Constraint("Tangent", 4, 2, 5, 1),
    Sketcher.Constraint("Tangent", 5, 2, 6, 1),
    Sketcher.Constraint("Tangent", 6, 2, 7, 1),
    Sketcher.Constraint("Tangent", 7, 2, 0, 1),
    Sketcher.Constraint("Tangent", 8, 2, 9, 2),
    Sketcher.Constraint("Tangent", 9, 1, 10, 1),
    Sketcher.Constraint("Tangent", 10, 2, 11, 2),
    Sketcher.Constraint("Tangent", 11, 1, 12, 1),
    Sketcher.Constraint("Tangent", 12, 2, 13, 2),
    Sketcher.Constraint("Tangent", 13, 1, 14, 1),
    Sketcher.Constraint("Tangent", 14, 2, 15, 2),
    Sketcher.Constraint("Tangent", 15, 1, 8, 1),
    Sketcher.Constraint("Horizontal", 0),
    Sketcher.Constraint("Vertical", 2),
    Sketcher.Constraint("Horizontal", 4),
    Sketcher.Constraint("Vertical", 6),
    Sketcher.Constraint("Horizontal", 8),
    Sketcher.Constraint("Vertical", 10),
    Sketcher.Constraint("Horizontal", 12),
    Sketcher.Constraint("Vertical", 14),
    Sketcher.Constraint("Coincident", 9, 3, 3, 3),
    Sketcher.Constraint("Coincident", 11, 3, 1, 3),
    Sketcher.Constraint("Coincident", 13, 3, 7, 3),
    Sketcher.Constraint("Equal", 1, 3),
    Sketcher.Constraint("Equal", 3, 5),
    Sketcher.Constraint("Equal", 5, 7),
    Sketcher.Constraint("Equal", 13, 15),
    Sketcher.Constraint("Radius", 9, Q("2 mm")),
    Sketcher.Constraint("Radius", 1, Q("3.5 mm")),
    Sketcher.Constraint("DistanceX", 0, 1, 0, 2, Q("7 mm")),
    Sketcher.Constraint("DistanceY", 2, 1, 2, 2, Q("1 mm")),
    Sketcher.Constraint("DistanceY", -1, 1, 1, 3, Q("8 mm")),
    Sketcher.Constraint("DistanceX", 1, 2, -1, 1, Q("16 mm")),
])
pad7 = body.newObject("PartDesign::Pad", "Pad006")
pad7.Profile = sketch12
pad7.Length = 2
pad7.Reversed = True

doc.recompute()
